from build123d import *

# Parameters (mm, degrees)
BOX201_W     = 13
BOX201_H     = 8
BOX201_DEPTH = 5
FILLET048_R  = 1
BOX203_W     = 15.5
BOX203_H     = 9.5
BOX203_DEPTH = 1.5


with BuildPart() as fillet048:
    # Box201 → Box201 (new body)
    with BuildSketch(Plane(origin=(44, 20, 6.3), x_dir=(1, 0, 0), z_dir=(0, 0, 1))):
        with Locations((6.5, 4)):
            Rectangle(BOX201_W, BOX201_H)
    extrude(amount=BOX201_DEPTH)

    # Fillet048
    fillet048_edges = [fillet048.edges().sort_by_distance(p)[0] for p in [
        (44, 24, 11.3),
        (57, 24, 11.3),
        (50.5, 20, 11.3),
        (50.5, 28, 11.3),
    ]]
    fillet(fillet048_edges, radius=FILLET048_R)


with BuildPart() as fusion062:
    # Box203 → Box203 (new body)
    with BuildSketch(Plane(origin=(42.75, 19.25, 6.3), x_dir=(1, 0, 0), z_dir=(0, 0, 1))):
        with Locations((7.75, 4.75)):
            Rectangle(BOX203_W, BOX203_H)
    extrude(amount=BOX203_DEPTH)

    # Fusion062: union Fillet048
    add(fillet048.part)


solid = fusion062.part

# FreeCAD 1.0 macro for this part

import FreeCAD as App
import Part
import Sketcher
from FreeCAD import Vector


def edges_at(feature, points):
    """Names of the edges that pass closest to the given points."""
    edges = feature.Shape.Edges
    near = lambda p: min(range(len(edges)), key=lambda i: edges[i].distToShape(Part.Vertex(*p))[0])
    return sorted({f"Edge{near(p) + 1}" for p in points})


def add_polygon(sketch, points):
    """Adds a closed chain of lines whose ends are joined by coincident constraints."""
    first, n = sketch.GeometryCount, len(points)
    for a, b in zip(points, points[1:] + points[:1]):
        sketch.addGeometry(Part.LineSegment(App.Vector(*a, 0), App.Vector(*b, 0)), False)
    for i in range(n):
        sketch.addConstraint(Sketcher.Constraint("Coincident", first + i, 2, first + (i + 1) % n, 1))

doc = App.newDocument("Part")
params = doc.addObject("Spreadsheet::Sheet", "Params")
for row, (alias, value) in enumerate([
    ("sketch1_width", "13 mm"),
    ("sketch1_height", "8 mm"),
    ("pad1_length", "5 mm"),
    ("fillet_radius", "1 mm"),
    ("sketch2_width", "15.5 mm"),
    ("sketch2_height", "9.5 mm"),
    ("pad2_length", "1.5 mm"),
], start=1):
    params.set(f"A{row}", alias)
    params.set(f"B{row}", "=" + value)
    params.setAlias(f"B{row}", alias)

body = doc.addObject("PartDesign::Body", "Body")

# Sketch on XY plane
sketch1 = body.newObject("Sketcher::SketchObject", "Sketch")
sketch1.AttachmentSupport = (doc.getObject("XY_Plane"), [""])
sketch1.MapMode = "FlatFace"
sketch1.AttachmentOffset = App.Placement(Vector(0, 0, 6.3), App.Rotation())
add_polygon(sketch1, [(44, 28), (44, 20), (57, 20), (57, 28)])  # lines 0-3
sketch1.addConstraint(Sketcher.Constraint("Vertical", 0))
sketch1.addConstraint(Sketcher.Constraint("Horizontal", 1))
sketch1.addConstraint(Sketcher.Constraint("Vertical", 2))
sketch1.addConstraint(Sketcher.Constraint("Horizontal", 3))
sketch1.addConstraint(Sketcher.Constraint("DistanceX", 1, 1, 1, 2, 13.0))
sketch1.addConstraint(Sketcher.Constraint("DistanceY", 0, 2, 0, 1, 8.0))
sketch1.addConstraint(Sketcher.Constraint("DistanceX", -1, 1, 0, 2, 44.0))
sketch1.addConstraint(Sketcher.Constraint("DistanceY", -1, 1, 0, 2, 20.0))
sketch1.setExpression("Constraints[8]", "Params.sketch1_width")
sketch1.setExpression("Constraints[9]", "Params.sketch1_height")
pad1 = body.newObject("PartDesign::Pad", "Pad")
pad1.Profile = sketch1
pad1.setExpression("Length", "Params.pad1_length")
doc.recompute()

fillet = body.newObject("PartDesign::Fillet", "Fillet")
fillet.Base = (pad1, edges_at(pad1, [
    (44, 24, 11.3),
    (57, 24, 11.3),
    (50.5, 20, 11.3),
    (50.5, 28, 11.3),
]))
fillet.setExpression("Radius", "Params.fillet_radius")
body2 = doc.addObject("PartDesign::Body", "Body001")

# Sketch on XY plane
sketch2 = body2.newObject("Sketcher::SketchObject", "Sketch001")
sketch2.AttachmentSupport = (doc.getObject("XY_Plane001"), [""])
sketch2.MapMode = "FlatFace"
sketch2.AttachmentOffset = App.Placement(Vector(0, 0, 6.3), App.Rotation())
add_polygon(sketch2, [(43, 29), (43, 19), (58, 19), (58, 29)])  # lines 0-3
sketch2.addConstraint(Sketcher.Constraint("Vertical", 0))
sketch2.addConstraint(Sketcher.Constraint("Horizontal", 1))
sketch2.addConstraint(Sketcher.Constraint("Vertical", 2))
sketch2.addConstraint(Sketcher.Constraint("Horizontal", 3))
sketch2.addConstraint(Sketcher.Constraint("DistanceX", 1, 1, 1, 2, 15.5))
sketch2.addConstraint(Sketcher.Constraint("DistanceY", 0, 2, 0, 1, 9.5))
sketch2.addConstraint(Sketcher.Constraint("DistanceX", -1, 1, 0, 2, 42.75))
sketch2.addConstraint(Sketcher.Constraint("DistanceY", -1, 1, 0, 2, 19.25))
sketch2.setExpression("Constraints[8]", "Params.sketch2_width")
sketch2.setExpression("Constraints[9]", "Params.sketch2_height")
pad2 = body2.newObject("PartDesign::Pad", "Pad001")
pad2.Profile = sketch2
pad2.setExpression("Length", "Params.pad2_length")
doc.recompute()

boolean = body2.newObject("PartDesign::Boolean", "Boolean")
boolean.Type = "Fuse"
boolean.addObjects([body])

doc.recompute()
